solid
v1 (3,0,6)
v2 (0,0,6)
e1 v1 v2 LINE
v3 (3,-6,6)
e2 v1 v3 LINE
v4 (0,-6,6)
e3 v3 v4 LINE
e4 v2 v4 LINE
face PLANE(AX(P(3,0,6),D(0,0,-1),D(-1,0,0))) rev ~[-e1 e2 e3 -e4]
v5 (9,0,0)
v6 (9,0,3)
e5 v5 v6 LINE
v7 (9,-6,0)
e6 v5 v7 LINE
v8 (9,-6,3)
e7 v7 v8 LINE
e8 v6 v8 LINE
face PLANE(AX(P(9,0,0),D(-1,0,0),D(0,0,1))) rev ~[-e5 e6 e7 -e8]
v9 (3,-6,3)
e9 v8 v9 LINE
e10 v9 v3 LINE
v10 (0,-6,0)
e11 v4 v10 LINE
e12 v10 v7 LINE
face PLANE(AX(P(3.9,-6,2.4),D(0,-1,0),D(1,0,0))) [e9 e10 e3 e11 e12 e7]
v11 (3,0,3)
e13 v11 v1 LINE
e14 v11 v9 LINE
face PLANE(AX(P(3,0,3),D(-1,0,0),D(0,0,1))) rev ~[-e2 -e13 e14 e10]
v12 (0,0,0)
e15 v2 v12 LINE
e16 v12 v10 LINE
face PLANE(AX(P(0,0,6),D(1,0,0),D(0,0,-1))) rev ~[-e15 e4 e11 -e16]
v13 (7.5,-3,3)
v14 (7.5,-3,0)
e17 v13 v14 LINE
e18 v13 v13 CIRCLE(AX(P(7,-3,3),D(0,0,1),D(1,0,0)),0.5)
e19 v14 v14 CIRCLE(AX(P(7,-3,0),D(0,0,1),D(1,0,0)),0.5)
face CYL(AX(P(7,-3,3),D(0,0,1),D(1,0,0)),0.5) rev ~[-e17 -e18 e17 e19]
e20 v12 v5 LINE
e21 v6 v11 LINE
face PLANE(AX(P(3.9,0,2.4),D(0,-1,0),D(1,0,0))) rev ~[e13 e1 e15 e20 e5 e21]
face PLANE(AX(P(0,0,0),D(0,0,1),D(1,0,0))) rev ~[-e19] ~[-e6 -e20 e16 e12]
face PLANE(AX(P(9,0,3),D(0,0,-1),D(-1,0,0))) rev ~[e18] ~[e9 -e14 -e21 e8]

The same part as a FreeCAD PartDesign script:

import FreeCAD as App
import Part
import Sketcher


def add_polygon(sketch, points):
    """Adds a closed chain of lines whose ends are joined by coincident constraints."""
    first, n = sketch.GeometryCount, len(points)
    for a, b in zip(points, points[1:] + points[:1]):
        sketch.addGeometry(Part.LineSegment(App.Vector(*a, 0), App.Vector(*b, 0)), False)
    for i in range(n):
        sketch.addConstraint(Sketcher.Constraint("Coincident", first + i, 2, first + (i + 1) % n, 1))

doc = App.newDocument("Part")
body = doc.addObject("PartDesign::Body", "Body")

# Sketch on XZ plane
sketch1 = body.newObject("Sketcher::SketchObject", "Sketch")
sketch1.AttachmentSupport = (doc.getObject("XZ_Plane"), [""])
sketch1.MapMode = "FlatFace"
add_polygon(sketch1, [(0, 6), (0, 0), (9, 0), (9, 3), (3, 3), (3, 6)])  # lines 0-5
sketch1.addConstraint([
    Sketcher.Constraint("Vertical", 0),
    Sketcher.Constraint("Horizontal", 1),
    Sketcher.Constraint("Vertical", 2),
    Sketcher.Constraint("Horizontal", 3),
    Sketcher.Constraint("Vertical", 4),
    Sketcher.Constraint("Horizontal", 5),
    Sketcher.Constraint("Coincident", 0, 2, -1, 1),
    Sketcher.Constraint("Equal", 3, 0),
    Sketcher.Constraint("Equal", 5, 2),
    Sketcher.Constraint("Equal", 2, 4),
    Sketcher.Constraint("DistanceX", 1, 1, 1, 2, 9.0),
])
pad1 = body.newObject("PartDesign::Pad", "Pad")
pad1.Profile = sketch1
pad1.Length = 6

# Sketch on XY plane
sketch2 = body.newObject("Sketcher::SketchObject", "Sketch001")
sketch2.AttachmentSupport = (doc.getObject("XY_Plane"), [""])
sketch2.MapMode = "FlatFace"
sketch2.AttachmentOffset = App.Placement(App.Vector(0, 0, 3), App.Rotation())
sketch2.addGeometry(Part.Circle(App.Vector(7, -3, 0), App.Vector(0, 0, 1), 0.5), False)
sketch2.addConstraint([
    Sketcher.Constraint("Diameter", 0, 1.0),
    Sketcher.Constraint("DistanceX", -1, 1, 0, 3, 7.0),
    Sketcher.Constraint("DistanceY", 0, 3, -1, 1, 3.0),
])
pocket1 = body.newObject("PartDesign::Pocket", "Pocket")
pocket1.Profile = sketch2
pocket1.Type = "ThroughAll"

doc.recompute()
